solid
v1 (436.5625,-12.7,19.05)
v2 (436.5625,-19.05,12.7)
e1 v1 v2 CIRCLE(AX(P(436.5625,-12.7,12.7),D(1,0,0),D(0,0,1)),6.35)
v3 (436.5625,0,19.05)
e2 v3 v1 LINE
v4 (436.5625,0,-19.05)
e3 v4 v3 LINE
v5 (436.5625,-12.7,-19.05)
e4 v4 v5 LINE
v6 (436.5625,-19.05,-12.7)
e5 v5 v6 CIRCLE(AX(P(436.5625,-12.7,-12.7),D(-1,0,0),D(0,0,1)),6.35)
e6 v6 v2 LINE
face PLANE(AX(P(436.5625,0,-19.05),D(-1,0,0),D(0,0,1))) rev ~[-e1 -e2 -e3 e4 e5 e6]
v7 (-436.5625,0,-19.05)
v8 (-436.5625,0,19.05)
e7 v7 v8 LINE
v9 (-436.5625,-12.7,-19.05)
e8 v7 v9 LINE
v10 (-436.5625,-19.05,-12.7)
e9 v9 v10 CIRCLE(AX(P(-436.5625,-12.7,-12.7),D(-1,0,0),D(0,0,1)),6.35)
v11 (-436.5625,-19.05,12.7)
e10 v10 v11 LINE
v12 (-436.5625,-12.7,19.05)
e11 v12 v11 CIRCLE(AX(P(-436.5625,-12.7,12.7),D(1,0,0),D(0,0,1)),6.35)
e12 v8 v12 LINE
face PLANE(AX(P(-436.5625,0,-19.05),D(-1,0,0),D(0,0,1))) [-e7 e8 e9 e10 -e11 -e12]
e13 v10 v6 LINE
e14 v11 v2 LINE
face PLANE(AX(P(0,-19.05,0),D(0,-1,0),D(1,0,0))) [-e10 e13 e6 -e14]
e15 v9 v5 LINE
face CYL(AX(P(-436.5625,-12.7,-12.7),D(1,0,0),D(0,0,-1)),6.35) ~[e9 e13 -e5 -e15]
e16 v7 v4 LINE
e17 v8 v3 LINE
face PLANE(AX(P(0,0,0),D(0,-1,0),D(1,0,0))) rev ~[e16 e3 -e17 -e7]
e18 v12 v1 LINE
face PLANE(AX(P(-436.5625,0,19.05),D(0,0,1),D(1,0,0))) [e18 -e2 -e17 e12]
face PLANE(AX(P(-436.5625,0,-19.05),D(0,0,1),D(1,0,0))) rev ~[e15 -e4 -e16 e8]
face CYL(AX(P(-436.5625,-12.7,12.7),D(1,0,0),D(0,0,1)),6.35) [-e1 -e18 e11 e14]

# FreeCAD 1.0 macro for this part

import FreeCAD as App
import Part
import Sketcher
from FreeCAD import Vector
Q = App.Units.Quantity


def edges_at(feature, points):
    """Names of the edges that pass closest to the given points."""
    edges = feature.Shape.Edges
    near = lambda p: min(range(len(edges)), key=lambda i: edges[i].distToShape(Part.Vertex(*p))[0])
    return sorted({f"Edge{near(p) + 1}" for p in points})


def add_polygon(sketch, points):
    """Adds a closed chain of lines whose ends are joined by coincident constraints."""
    first, n = sketch.GeometryCount, len(points)
    for a, b in zip(points, points[1:] + points[:1]):
        sketch.addGeometry(Part.LineSegment(App.Vector(*a, 0), App.Vector(*b, 0)), False)
    for i in range(n):
        sketch.addConstraint(Sketcher.Constraint("Coincident", first + i, 2, first + (i + 1) % n, 1))

doc = App.newDocument("Part")
params = doc.addObject("Spreadsheet::Sheet", "Params")
for row, (alias, value) in enumerate([
    ("sketch1_height", "1.5 in"),
    ("sketch1_width", "34.375 in"),
    ("pad1_length", "0.75 in"),
    ("fillet_radius", "0.25 in"),
], start=1):
    params.set(f"A{row}", alias)
    params.set(f"B{row}", "=" + value)
    params.setAlias(f"B{row}", alias)

body = doc.addObject("PartDesign::Body", "Body")

# Sketch on XZ plane
sketch1 = doc.addObject("Sketcher::SketchObject", "Sketch")
body.addObject(sketch1)
sketch1.AttachmentSupport = (doc.XZ_Plane, [""])
sketch1.MapMode = "FlatFace"
add_polygon(sketch1, [(-437, 19), (-437, -19), (437, -19), (437, 19)])  # lines 0-3
sketch1.addConstraint([
    Sketcher.Constraint("Vertical", 0),
    Sketcher.Constraint("Horizontal", 1),
    Sketcher.Constraint("Vertical", 2),
    Sketcher.Constraint("Horizontal", 3),
    Sketcher.Constraint("Symmetric", 0, 2, 2, 2, -1, 1),
    Sketcher.Constraint("DistanceY", 0, 2, 0, 1, Q("1.5 in")),
    Sketcher.Constraint("DistanceX", 1, 1, 1, 2, Q("34.375 in")),
])
sketch1.setExpression("Constraints[9]", "Params.sketch1_height")
sketch1.setExpression("Constraints[10]", "Params.sketch1_width")
pad1 = doc.addObject("PartDesign::Pad", "Pad")
body.addObject(pad1)
pad1.Profile = sketch1
pad1.setExpression("Length", "Params.pad1_length")
doc.recompute()

fillet = doc.addObject("PartDesign::Fillet", "Fillet")
body.addObject(fillet)
fillet.Base = (pad1, edges_at(pad1, [(0, -19.05, 19.05), (0, -19.05, -19.05)]))
fillet.setExpression("Radius", "Params.fillet_radius")

doc.recompute()
